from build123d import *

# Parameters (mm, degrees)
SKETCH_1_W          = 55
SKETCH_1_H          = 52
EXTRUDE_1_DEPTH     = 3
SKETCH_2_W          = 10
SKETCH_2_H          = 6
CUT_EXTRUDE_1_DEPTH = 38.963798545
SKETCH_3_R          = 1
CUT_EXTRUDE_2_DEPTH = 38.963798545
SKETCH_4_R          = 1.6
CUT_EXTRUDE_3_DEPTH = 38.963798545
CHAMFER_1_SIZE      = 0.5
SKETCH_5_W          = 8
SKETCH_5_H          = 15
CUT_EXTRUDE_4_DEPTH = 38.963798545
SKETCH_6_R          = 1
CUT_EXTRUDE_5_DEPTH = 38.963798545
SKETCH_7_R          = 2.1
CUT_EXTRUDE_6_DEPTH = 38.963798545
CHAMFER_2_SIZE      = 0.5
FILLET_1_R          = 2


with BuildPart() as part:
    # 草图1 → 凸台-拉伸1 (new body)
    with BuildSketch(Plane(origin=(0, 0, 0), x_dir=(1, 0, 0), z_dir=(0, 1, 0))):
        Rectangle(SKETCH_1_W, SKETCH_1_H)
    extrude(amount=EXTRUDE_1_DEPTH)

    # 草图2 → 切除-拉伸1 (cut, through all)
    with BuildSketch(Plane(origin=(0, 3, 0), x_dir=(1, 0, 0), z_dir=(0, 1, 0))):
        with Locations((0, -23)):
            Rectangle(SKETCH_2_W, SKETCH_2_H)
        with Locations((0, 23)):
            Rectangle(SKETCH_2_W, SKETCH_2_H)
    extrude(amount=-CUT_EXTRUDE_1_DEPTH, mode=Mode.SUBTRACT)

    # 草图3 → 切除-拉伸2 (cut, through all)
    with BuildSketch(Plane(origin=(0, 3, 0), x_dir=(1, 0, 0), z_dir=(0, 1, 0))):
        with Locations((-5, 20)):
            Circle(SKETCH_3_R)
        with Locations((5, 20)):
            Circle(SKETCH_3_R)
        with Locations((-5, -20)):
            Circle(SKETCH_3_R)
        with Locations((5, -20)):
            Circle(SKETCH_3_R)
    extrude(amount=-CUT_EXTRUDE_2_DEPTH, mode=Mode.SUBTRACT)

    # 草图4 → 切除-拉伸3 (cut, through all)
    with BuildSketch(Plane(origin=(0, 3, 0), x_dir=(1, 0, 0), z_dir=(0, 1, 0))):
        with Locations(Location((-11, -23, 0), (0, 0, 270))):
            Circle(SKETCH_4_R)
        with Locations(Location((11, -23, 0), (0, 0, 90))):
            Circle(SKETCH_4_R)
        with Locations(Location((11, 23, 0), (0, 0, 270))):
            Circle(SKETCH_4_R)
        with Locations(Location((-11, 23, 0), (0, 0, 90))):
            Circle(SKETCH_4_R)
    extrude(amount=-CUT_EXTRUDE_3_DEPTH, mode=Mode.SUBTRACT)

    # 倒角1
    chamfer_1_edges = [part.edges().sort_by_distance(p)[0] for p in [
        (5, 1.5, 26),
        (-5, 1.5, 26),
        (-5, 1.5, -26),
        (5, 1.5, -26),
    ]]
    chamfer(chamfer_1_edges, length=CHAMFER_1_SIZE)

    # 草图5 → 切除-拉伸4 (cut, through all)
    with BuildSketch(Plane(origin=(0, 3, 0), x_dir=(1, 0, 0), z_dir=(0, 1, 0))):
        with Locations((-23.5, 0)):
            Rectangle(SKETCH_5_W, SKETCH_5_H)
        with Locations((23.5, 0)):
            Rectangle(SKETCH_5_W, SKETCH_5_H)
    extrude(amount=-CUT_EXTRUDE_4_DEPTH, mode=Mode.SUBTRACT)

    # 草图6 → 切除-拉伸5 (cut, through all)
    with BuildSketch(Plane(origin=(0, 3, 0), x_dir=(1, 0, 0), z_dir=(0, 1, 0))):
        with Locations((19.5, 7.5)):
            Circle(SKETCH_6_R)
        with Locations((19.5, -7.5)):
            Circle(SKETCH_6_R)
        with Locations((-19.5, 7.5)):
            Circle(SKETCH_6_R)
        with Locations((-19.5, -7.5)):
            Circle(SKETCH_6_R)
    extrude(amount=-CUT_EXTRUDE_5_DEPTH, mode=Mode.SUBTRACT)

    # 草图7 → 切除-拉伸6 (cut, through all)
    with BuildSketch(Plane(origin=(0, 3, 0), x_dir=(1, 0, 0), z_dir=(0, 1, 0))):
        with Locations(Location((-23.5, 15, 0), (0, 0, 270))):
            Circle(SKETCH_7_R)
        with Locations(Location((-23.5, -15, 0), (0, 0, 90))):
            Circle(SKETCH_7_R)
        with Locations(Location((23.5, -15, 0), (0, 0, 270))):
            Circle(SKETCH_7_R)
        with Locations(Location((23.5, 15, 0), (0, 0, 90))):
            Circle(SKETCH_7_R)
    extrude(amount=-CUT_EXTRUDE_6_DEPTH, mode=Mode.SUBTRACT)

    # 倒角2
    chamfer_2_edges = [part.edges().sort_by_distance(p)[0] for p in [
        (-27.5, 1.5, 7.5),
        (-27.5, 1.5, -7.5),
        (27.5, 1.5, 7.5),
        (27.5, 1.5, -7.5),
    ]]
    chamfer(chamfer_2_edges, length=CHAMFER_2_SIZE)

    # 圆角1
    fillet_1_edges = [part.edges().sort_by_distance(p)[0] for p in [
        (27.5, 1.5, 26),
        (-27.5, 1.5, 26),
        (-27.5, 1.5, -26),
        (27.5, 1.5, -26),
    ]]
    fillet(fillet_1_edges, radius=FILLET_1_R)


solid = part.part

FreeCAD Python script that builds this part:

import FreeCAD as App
import Part
import Sketcher

V = App.Vector


def edges_at(feature, points):
    """Names of the edges that pass closest to the given points."""
    edges = feature.Shape.Edges
    near = lambda p: min(range(len(edges)), key=lambda i: edges[i].distToShape(Part.Vertex(*p))[0])
    return sorted({f"Edge{near(p) + 1}" for p in points})


def add_polygon(sketch, points):
    """Adds a closed chain of lines whose ends are joined by coincident constraints."""
    first, n = sketch.GeometryCount, len(points)
    for a, b in zip(points, points[1:] + points[:1]):
        sketch.addGeometry(Part.LineSegment(App.Vector(*a, 0), App.Vector(*b, 0)), False)
    for i in range(n):
        sketch.addConstraint(Sketcher.Constraint("Coincident", first + i, 2, first + (i + 1) % n, 1))

doc = App.newDocument("Part")
body = doc.addObject("PartDesign::Body", "Body")

# Sketch on XZ plane
sketch1 = doc.addObject("Sketcher::SketchObject", "Sketch")
body.addObject(sketch1)
sketch1.AttachmentSupport = (doc.XZ_Plane, [""])
sketch1.MapMode = "FlatFace"
add_polygon(sketch1, [(-28, -26), (-28, 26), (28, 26), (28, -26)])  # lines 0-3
sketch1.addConstraint(Sketcher.Constraint("Vertical", 0))
sketch1.addConstraint(Sketcher.Constraint("Horizontal", 1))
sketch1.addConstraint(Sketcher.Constraint("Vertical", 2))
sketch1.addConstraint(Sketcher.Constraint("Horizontal", 3))
sketch1.addConstraint(Sketcher.Constraint("Symmetric", 0, 2, 2, 2, -1, 1))
sketch1.addConstraint(Sketcher.Constraint("DistanceX", 1, 1, 1, 2, 55.0))
sketch1.addConstraint(Sketcher.Constraint("DistanceY", 0, 1, 0, 2, 52.0))
pad1 = doc.addObject("PartDesign::Pad", "Pad")
body.addObject(pad1)
pad1.Profile = sketch1
pad1.Length = 3
pad1.Reversed = True

# Sketch on XZ plane
sketch2 = doc.addObject("Sketcher::SketchObject", "Sketch001")
body.addObject(sketch2)
sketch2.AttachmentSupport = (doc.XZ_Plane, [""])
sketch2.MapMode = "FlatFace"
sketch2.AttachmentOffset = App.Placement(V(0, 0, -3), App.Rotation())
add_polygon(sketch2, [(-5, 20), (-5, 26), (5, 26), (5, 20)])  # lines 0-3
add_polygon(sketch2, [(-5, -26), (-5, -20), (5, -20), (5, -26)])  # lines 4-7
sketch2.addConstraint(Sketcher.Constraint("Vertical", 0))
sketch2.addConstraint(Sketcher.Constraint("Horizontal", 1))
sketch2.addConstraint(Sketcher.Constraint("Vertical", 2))
sketch2.addConstraint(Sketcher.Constraint("Horizontal", 3))
sketch2.addConstraint(Sketcher.Constraint("Vertical", 4))
sketch2.addConstraint(Sketcher.Constraint("Horizontal", 5))
sketch2.addConstraint(Sketcher.Constraint("Vertical", 6))
sketch2.addConstraint(Sketcher.Constraint("Horizontal", 7))
sketch2.addConstraint(Sketcher.Constraint("Symmetric", 2, 2, 4, 2, -1, 1))
sketch2.addConstraint(Sketcher.Constraint("Symmetric", 0, 2, 6, 2, -1, 1))
sketch2.addConstraint(Sketcher.Constraint("Vertical", 3, 2, 4, 2))
sketch2.addConstraint(Sketcher.Constraint("DistanceX", 1, 1, 1, 2, 10.0))
sketch2.addConstraint(Sketcher.Constraint("DistanceY", 0, 1, 0, 2, 6.0))
sketch2.addConstraint(Sketcher.Constraint("DistanceY", -1, 1, 0, 2, 26.0))
pocket1 = doc.addObject("PartDesign::Pocket", "Pocket")
body.addObject(pocket1)
pocket1.Profile = sketch2
pocket1.Type = "ThroughAll"
pocket1.Reversed = True

# Sketch on XZ plane
sketch3 = doc.addObject("Sketcher::SketchObject", "Sketch002")
body.addObject(sketch3)
sketch3.AttachmentSupport = (doc.XZ_Plane, [""])
sketch3.MapMode = "FlatFace"
sketch3.AttachmentOffset = App.Placement(V(0, 0, -3), App.Rotation())
sketch3.addGeometry(Part.Circle(V(-5, -20, 0), V(0, 0, 1), 1), False)
sketch3.addGeometry(Part.Circle(V(5, -20, 0), V(0, 0, 1), 1), False)
sketch3.addGeometry(Part.Circle(V(-5, 20, 0), V(0, 0, 1), 1), False)
sketch3.addGeometry(Part.Circle(V(5, 20, 0), V(0, 0, 1), 1), False)
sketch3.addConstraint(Sketcher.Constraint("Equal", 0, 1))
sketch3.addConstraint(Sketcher.Constraint("Equal", 1, 2))
sketch3.addConstraint(Sketcher.Constraint("Equal", 2, 3))
sketch3.addConstraint(Sketcher.Constraint("Symmetric", 1, 3, 2, 3, -1, 1))
sketch3.addConstraint(Sketcher.Constraint("Symmetric", 0, 3, 3, 3, -1, 1))
sketch3.addConstraint(Sketcher.Constraint("Symmetric", 0, 3, 1, 3, -2))
sketch3.addConstraint(Sketcher.Constraint("Diameter", 0, 2.0))
sketch3.addConstraint(Sketcher.Constraint("DistanceX", 0, 3, -1, 1, 5.0))
sketch3.addConstraint(Sketcher.Constraint("DistanceY", 0, 3, -1, 1, 20.0))
pocket2 = doc.addObject("PartDesign::Pocket", "Pocket001")
body.addObject(pocket2)
pocket2.Profile = sketch3
pocket2.Type = "ThroughAll"
pocket2.Reversed = True

# Sketch on XZ plane
sketch4 = doc.addObject("Sketcher::SketchObject", "Sketch003")
body.addObject(sketch4)
sketch4.AttachmentSupport = (doc.XZ_Plane, [""])
sketch4.MapMode = "FlatFace"
sketch4.AttachmentOffset = App.Placement(V(0, 0, -3), App.Rotation())
sketch4.addGeometry(Part.Circle(V(-11, 23, 0), V(0, 0, 1), 1.6), False)
sketch4.addGeometry(Part.Circle(V(11, 23, 0), V(0, 0, 1), 1.6), False)
sketch4.addGeometry(Part.Circle(V(11, -23, 0), V(0, 0, 1), 1.6), False)
sketch4.addGeometry(Part.Circle(V(-11, -23, 0), V(0, 0, 1), 1.6), False)
sketch4.addConstraint(Sketcher.Constraint("Equal", 0, 1))
sketch4.addConstraint(Sketcher.Constraint("Equal", 1, 2))
sketch4.addConstraint(Sketcher.Constraint("Equal", 2, 3))
sketch4.addConstraint(Sketcher.Constraint("Symmetric", 0, 3, 2, 3, -1, 1))
sketch4.addConstraint(Sketcher.Constraint("Symmetric", 1, 3, 3, 3, -1, 1))
sketch4.addConstraint(Sketcher.Constraint("Symmetric", 0, 3, 1, 3, -2))
sketch4.addConstraint(Sketcher.Constraint("Diameter", 0, 3.2))
sketch4.addConstraint(Sketcher.Constraint("DistanceX", 0, 3, -1, 1, 11.0))
sketch4.addConstraint(Sketcher.Constraint("DistanceY", -1, 1, 0, 3, 23.0))
pocket3 = doc.addObject("PartDesign::Pocket", "Pocket002")
body.addObject(pocket3)
pocket3.Profile = sketch4
pocket3.Type = "ThroughAll"
pocket3.Reversed = True
doc.recompute()

chamfer = doc.addObject("PartDesign::Chamfer", "Chamfer")
body.addObject(chamfer)
chamfer.Base = (pocket3, edges_at(pocket3, [
    (5, 1.5, 26),
    (-5, 1.5, 26),
    (-5, 1.5, -26),
    (5, 1.5, -26),
]))
chamfer.Size = 0.5

# Sketch on XZ plane
sketch5 = doc.addObject("Sketcher::SketchObject", "Sketch004")
body.addObject(sketch5)
sketch5.AttachmentSupport = (doc.XZ_Plane, [""])
sketch5.MapMode = "FlatFace"
sketch5.AttachmentOffset = App.Placement(V(0, 0, -3), App.Rotation())
add_polygon(sketch5, [(-28, -8), (-28, 8), (-20, 8), (-20, -8)])  # lines 0-3
add_polygon(sketch5, [(20, -8), (20, 8), (28, 8), (28, -8)])  # lines 4-7
sketch5.addConstraint(Sketcher.Constraint("Vertical", 0))
sketch5.addConstraint(Sketcher.Constraint("Horizontal", 1))
sketch5.addConstraint(Sketcher.Constraint("Vertical", 2))
sketch5.addConstraint(Sketcher.Constraint("Horizontal", 3))
sketch5.addConstraint(Sketcher.Constraint("Vertical", 4))
sketch5.addConstraint(Sketcher.Constraint("Horizontal", 5))
sketch5.addConstraint(Sketcher.Constraint("Vertical", 6))
sketch5.addConstraint(Sketcher.Constraint("Horizontal", 7))
sketch5.addConstraint(Sketcher.Constraint("Symmetric", 2, 2, 4, 2, -1, 1))
sketch5.addConstraint(Sketcher.Constraint("Symmetric", 0, 2, 6, 2, -1, 1))
sketch5.addConstraint(Sketcher.Constraint("Horizontal", 1, 2, 4, 2))
sketch5.addConstraint(Sketcher.Constraint("DistanceX", 1, 1, 1, 2, 8.0))
sketch5.addConstraint(Sketcher.Constraint("DistanceY", 0, 1, 0, 2, 15.0))
sketch5.addConstraint(Sketcher.Constraint("DistanceX", 1, 2, 4, 2, 39.0))
pocket4 = doc.addObject("PartDesign::Pocket", "Pocket003")
body.addObject(pocket4)
pocket4.Profile = sketch5
pocket4.Type = "ThroughAll"
pocket4.Reversed = True

# Sketch on XZ plane
sketch6 = doc.addObject("Sketcher::SketchObject", "Sketch005")
body.addObject(sketch6)
sketch6.AttachmentSupport = (doc.XZ_Plane, [""])
sketch6.MapMode = "FlatFace"
sketch6.AttachmentOffset = App.Placement(V(0, 0, -3), App.Rotation())
sketch6.addGeometry(Part.Circle(V(19.5, -7.5, 0), V(0, 0, 1), 1), False)
sketch6.addGeometry(Part.Circle(V(19.5, 7.5, 0), V(0, 0, 1), 1), False)
sketch6.addGeometry(Part.Circle(V(-19.5, -7.5, 0), V(0, 0, 1), 1), False)
sketch6.addGeometry(Part.Circle(V(-19.5, 7.5, 0), V(0, 0, 1), 1), False)
sketch6.addConstraint(Sketcher.Constraint("Equal", 0, 1))
sketch6.addConstraint(Sketcher.Constraint("Equal", 1, 2))
sketch6.addConstraint(Sketcher.Constraint("Equal", 2, 3))
sketch6.addConstraint(Sketcher.Constraint("Symmetric", 1, 3, 2, 3, -1, 1))
sketch6.addConstraint(Sketcher.Constraint("Symmetric", 0, 3, 3, 3, -1, 1))
sketch6.addConstraint(Sketcher.Constraint("Symmetric", 0, 3, 2, 3, -2))
sketch6.addConstraint(Sketcher.Constraint("Diameter", 0, 2.0))
sketch6.addConstraint(Sketcher.Constraint("DistanceY", 0, 3, 1, 3, 15.0))
sketch6.addConstraint(Sketcher.Constraint("DistanceX", 2, 3, 0, 3, 39.0))
pocket5 = doc.addObject("PartDesign::Pocket", "Pocket004")
body.addObject(pocket5)
pocket5.Profile = sketch6
pocket5.Type = "ThroughAll"
pocket5.Reversed = True

# Sketch on XZ plane
sketch7 = doc.addObject("Sketcher::SketchObject", "Sketch006")
body.addObject(sketch7)
sketch7.AttachmentSupport = (doc.XZ_Plane, [""])
sketch7.MapMode = "FlatFace"
sketch7.AttachmentOffset = App.Placement(V(0, 0, -3), App.Rotation())
sketch7.addGeometry(Part.Circle(V(-23.5, -15, 0), V(0, 0, 1), 2.1), False)
sketch7.addGeometry(Part.Circle(V(-23.5, 15, 0), V(0, 0, 1), 2.1), False)
sketch7.addGeometry(Part.Circle(V(23.5, 15, 0), V(0, 0, 1), 2.1), False)
sketch7.addGeometry(Part.Circle(V(23.5, -15, 0), V(0, 0, 1), 2.1), False)
sketch7.addConstraint(Sketcher.Constraint("Equal", 0, 1))
sketch7.addConstraint(Sketcher.Constraint("Equal", 1, 2))
sketch7.addConstraint(Sketcher.Constraint("Equal", 2, 3))
sketch7.addConstraint(Sketcher.Constraint("Symmetric", 0, 3, 2, 3, -1, 1))
sketch7.addConstraint(Sketcher.Constraint("Symmetric", 1, 3, 3, 3, -1, 1))
sketch7.addConstraint(Sketcher.Constraint("Symmetric", 1, 3, 2, 3, -2))
sketch7.addConstraint(Sketcher.Constraint("Diameter", 0, 4.2))
sketch7.addConstraint(Sketcher.Constraint("DistanceY", 0, 3, -1, 1, 15.0))
sketch7.addConstraint(Sketcher.Constraint("DistanceX", 1, 3, 2, 3, 47.0))
pocket6 = doc.addObject("PartDesign::Pocket", "Pocket005")
body.addObject(pocket6)
pocket6.Profile = sketch7
pocket6.Type = "ThroughAll"
pocket6.Reversed = True
doc.recompute()

chamfer2 = doc.addObject("PartDesign::Chamfer", "Chamfer001")
body.addObject(chamfer2)
chamfer2.Base = (pocket6, edges_at(pocket6, [
    (-27.5, 1.5, 7.5),
    (-27.5, 1.5, -7.5),
    (27.5, 1.5, 7.5),
    (27.5, 1.5, -7.5),
]))
chamfer2.Size = 0.5
doc.recompute()

fillet = doc.addObject("PartDesign::Fillet", "Fillet")
body.addObject(fillet)
fillet.Base = (chamfer2, edges_at(chamfer2, [
    (27.5, 1.5, 26),
    (-27.5, 1.5, 26),
    (-27.5, 1.5, -26),
    (27.5, 1.5, -26),
]))
fillet.Radius = 2

doc.recompute()
